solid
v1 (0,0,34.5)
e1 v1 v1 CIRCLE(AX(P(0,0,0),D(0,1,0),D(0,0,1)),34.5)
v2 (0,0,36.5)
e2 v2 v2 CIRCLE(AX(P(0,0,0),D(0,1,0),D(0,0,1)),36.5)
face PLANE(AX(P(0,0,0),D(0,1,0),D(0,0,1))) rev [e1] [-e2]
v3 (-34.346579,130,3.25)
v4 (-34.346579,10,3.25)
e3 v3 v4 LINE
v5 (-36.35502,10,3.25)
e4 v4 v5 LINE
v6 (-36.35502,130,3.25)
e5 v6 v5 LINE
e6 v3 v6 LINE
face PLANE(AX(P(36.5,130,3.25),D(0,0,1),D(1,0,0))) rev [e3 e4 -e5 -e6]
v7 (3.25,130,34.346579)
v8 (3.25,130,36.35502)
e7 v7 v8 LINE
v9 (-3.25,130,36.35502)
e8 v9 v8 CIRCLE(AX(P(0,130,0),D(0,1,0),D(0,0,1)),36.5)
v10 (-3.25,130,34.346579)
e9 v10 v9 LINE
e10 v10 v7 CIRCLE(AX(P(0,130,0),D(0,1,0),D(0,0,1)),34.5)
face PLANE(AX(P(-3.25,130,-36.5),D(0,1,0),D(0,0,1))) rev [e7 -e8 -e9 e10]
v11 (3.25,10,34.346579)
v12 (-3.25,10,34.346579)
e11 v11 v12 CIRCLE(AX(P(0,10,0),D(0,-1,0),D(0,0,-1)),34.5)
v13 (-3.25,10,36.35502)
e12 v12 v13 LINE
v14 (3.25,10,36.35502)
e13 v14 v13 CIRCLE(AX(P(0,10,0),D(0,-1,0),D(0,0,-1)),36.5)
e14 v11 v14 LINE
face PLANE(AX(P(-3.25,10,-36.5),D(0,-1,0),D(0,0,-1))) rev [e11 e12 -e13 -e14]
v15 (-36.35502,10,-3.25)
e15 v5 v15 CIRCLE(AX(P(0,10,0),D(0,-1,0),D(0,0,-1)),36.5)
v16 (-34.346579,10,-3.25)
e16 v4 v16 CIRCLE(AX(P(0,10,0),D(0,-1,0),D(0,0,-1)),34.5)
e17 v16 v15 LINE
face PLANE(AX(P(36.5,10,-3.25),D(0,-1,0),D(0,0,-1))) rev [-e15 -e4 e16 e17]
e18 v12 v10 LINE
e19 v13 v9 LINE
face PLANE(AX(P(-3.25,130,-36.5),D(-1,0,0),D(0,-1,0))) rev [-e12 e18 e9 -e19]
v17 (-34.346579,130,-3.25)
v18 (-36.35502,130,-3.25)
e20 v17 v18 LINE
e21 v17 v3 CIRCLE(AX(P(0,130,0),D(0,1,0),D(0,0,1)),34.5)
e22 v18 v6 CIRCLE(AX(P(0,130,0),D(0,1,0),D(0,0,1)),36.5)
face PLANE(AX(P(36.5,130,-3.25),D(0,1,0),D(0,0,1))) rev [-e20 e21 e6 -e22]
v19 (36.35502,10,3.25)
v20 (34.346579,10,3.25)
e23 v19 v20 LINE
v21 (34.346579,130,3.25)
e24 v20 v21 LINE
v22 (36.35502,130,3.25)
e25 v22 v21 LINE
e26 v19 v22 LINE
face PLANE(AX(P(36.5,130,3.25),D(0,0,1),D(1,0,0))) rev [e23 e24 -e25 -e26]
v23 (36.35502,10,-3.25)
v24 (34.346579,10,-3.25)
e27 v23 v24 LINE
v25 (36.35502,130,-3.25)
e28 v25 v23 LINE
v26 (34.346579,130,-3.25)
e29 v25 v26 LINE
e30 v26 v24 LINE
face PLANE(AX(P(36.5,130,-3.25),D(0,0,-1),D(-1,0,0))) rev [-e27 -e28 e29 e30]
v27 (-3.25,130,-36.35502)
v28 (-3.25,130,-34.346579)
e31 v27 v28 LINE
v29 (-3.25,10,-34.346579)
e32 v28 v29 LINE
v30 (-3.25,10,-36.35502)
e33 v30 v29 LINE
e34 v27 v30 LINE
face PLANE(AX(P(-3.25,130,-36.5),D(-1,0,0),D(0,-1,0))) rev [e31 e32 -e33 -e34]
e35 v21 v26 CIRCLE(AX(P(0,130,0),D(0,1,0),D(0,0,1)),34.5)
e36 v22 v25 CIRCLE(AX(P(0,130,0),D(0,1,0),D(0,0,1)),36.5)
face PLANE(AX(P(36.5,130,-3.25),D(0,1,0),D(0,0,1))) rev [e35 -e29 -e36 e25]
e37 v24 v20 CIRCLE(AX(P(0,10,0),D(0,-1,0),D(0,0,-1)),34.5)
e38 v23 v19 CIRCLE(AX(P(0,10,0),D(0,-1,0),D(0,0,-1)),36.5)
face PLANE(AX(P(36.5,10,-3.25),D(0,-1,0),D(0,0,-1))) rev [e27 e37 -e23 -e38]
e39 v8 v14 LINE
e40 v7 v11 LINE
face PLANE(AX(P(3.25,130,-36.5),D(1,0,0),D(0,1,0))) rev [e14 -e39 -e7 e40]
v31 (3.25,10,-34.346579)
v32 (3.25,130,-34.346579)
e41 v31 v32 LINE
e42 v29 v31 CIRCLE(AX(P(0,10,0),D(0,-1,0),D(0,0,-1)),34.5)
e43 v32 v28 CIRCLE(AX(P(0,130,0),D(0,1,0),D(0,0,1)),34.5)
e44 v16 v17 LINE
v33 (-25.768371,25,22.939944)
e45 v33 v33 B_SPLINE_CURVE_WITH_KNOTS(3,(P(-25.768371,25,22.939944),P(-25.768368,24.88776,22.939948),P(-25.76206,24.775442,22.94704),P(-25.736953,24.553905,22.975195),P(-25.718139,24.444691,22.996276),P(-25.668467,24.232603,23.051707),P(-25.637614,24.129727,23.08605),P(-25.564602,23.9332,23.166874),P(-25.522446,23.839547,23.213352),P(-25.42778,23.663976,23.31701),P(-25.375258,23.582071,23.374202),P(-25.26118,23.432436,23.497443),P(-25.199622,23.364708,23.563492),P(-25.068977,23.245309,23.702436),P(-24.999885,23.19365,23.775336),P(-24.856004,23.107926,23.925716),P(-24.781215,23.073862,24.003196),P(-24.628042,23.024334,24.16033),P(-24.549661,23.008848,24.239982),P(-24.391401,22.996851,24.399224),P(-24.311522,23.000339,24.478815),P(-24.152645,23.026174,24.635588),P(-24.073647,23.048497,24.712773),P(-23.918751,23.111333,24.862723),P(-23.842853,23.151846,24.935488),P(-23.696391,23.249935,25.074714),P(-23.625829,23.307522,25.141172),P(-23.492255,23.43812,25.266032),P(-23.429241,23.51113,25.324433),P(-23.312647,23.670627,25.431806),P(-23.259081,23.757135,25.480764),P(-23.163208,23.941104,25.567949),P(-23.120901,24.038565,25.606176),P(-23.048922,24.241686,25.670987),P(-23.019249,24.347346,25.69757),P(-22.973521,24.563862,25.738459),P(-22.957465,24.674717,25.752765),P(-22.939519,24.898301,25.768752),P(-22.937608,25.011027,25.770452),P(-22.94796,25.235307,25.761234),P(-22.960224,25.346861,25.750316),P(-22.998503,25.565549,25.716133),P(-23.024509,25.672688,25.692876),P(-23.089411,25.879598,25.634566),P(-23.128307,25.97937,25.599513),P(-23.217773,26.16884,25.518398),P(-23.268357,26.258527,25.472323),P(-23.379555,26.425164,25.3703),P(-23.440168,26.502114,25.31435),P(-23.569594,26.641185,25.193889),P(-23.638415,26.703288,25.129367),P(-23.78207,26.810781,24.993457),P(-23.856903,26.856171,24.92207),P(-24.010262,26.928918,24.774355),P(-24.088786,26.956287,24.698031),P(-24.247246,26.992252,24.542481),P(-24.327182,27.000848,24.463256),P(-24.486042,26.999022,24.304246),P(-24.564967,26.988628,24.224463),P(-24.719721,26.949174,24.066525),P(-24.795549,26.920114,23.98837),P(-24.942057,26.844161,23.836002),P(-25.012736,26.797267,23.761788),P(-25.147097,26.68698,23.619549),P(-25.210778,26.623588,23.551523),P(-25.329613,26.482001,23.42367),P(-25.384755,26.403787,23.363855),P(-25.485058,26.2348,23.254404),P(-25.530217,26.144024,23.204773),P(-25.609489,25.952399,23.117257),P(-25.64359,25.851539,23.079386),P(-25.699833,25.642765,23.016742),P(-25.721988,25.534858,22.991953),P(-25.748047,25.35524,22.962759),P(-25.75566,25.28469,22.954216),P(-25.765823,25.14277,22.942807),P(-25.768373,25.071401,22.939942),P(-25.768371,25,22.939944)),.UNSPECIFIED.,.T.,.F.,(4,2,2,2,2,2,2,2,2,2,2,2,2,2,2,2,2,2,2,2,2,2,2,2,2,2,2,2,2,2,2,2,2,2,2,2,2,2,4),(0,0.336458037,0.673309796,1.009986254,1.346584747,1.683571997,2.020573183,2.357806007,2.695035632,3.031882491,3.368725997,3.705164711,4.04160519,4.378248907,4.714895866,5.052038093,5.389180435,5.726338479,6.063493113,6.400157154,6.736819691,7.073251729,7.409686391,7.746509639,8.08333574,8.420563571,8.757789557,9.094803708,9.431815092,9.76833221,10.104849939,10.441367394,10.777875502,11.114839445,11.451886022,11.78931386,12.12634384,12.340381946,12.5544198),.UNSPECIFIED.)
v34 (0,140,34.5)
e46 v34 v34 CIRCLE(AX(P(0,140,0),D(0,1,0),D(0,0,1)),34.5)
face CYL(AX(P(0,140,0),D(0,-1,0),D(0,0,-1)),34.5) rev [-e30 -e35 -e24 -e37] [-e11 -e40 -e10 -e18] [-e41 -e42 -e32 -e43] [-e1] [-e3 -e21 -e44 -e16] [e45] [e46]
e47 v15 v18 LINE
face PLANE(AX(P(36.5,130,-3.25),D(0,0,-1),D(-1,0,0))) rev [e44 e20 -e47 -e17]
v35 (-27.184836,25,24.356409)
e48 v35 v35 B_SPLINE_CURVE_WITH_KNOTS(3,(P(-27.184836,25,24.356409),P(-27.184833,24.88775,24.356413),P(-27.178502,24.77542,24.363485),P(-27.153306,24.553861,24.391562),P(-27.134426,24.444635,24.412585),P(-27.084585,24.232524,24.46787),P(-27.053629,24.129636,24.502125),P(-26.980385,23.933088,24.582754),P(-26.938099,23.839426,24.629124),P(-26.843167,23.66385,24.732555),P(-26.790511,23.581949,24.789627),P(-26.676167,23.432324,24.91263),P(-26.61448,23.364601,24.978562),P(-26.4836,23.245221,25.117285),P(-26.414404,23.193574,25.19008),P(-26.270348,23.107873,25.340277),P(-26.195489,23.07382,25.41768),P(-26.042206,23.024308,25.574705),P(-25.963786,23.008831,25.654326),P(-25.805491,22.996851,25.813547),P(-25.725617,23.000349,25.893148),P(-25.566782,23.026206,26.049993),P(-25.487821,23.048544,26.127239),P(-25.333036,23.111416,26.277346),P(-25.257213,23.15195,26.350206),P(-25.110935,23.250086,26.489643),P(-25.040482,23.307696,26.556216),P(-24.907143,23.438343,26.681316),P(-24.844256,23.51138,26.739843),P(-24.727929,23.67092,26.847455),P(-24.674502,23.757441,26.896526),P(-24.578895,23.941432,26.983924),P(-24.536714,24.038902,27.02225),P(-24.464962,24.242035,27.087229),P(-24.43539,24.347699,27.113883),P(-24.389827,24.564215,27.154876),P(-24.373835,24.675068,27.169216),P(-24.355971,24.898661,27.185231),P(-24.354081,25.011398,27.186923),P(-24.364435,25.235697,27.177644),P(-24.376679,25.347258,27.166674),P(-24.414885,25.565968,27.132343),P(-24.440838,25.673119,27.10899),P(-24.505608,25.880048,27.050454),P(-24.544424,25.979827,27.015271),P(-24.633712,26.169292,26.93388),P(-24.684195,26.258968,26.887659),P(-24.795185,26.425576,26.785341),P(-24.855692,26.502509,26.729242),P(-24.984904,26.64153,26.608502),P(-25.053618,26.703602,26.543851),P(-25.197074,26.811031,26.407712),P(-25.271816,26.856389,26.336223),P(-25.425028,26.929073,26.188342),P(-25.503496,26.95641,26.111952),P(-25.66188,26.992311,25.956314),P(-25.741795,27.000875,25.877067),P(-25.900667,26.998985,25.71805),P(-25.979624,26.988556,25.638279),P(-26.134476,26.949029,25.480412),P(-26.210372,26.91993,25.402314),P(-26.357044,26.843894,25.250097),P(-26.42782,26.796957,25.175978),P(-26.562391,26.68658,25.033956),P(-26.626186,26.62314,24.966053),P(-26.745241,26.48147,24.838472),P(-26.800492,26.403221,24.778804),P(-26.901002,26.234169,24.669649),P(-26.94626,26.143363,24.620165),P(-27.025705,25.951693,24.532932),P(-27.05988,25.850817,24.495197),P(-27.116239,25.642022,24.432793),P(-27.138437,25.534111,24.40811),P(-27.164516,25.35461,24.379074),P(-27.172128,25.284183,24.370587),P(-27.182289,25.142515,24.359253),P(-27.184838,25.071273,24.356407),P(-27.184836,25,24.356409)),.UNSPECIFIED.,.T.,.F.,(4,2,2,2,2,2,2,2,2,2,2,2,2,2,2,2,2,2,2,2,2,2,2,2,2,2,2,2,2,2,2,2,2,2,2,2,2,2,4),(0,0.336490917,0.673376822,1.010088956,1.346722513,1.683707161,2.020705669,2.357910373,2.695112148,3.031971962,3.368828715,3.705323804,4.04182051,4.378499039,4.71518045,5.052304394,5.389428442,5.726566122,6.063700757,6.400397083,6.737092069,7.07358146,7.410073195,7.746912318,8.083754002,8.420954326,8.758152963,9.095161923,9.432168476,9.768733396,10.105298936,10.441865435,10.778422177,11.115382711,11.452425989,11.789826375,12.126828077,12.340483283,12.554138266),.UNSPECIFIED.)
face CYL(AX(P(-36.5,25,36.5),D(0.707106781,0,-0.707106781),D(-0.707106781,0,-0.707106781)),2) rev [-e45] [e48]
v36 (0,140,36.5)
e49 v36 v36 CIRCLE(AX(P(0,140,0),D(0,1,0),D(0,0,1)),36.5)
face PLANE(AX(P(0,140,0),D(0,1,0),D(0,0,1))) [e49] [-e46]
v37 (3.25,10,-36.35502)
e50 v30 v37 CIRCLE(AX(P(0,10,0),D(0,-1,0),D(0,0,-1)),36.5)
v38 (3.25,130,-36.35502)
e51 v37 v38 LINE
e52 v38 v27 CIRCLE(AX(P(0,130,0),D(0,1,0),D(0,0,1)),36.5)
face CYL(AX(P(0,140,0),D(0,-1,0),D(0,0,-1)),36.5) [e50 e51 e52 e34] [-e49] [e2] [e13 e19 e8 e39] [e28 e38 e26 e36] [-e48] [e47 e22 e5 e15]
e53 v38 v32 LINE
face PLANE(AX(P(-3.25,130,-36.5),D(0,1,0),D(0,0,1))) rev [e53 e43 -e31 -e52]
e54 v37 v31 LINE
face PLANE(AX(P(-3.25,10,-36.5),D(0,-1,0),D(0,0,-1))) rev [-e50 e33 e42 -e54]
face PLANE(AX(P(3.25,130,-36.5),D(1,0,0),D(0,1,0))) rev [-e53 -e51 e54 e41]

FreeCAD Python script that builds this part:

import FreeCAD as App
import Part
import Sketcher
Q = App.Units.Quantity

doc = App.newDocument("Part")
body = doc.addObject("PartDesign::Body", "Body")

# Sketch on XZ plane
sketch1 = body.newObject("Sketcher::SketchObject", "Sketch")
sketch1.AttachmentSupport = (doc.getObject("XZ_Plane"), [""])
sketch1.MapMode = "FlatFace"
sketch1.addGeometry([
    Part.Circle(App.Vector(0, 0, 0), App.Vector(0, 0, 1), 36.5),
    Part.Circle(App.Vector(0, 0, 0), App.Vector(0, 0, 1), 34.5),
], False)
sketch1.addConstraint([
    Sketcher.Constraint("Coincident", 0, 3, -1, 1),
    Sketcher.Constraint("Coincident", 1, 3, -1, 1),
    Sketcher.Constraint("Diameter", 0, Q("73 mm")),
    Sketcher.Constraint("Diameter", 1, Q("69 mm")),
])
pad1 = body.newObject("PartDesign::Pad", "Pad")
pad1.Profile = sketch1
pad1.Length = 140
pad1.Reversed = True

# Sketch on XY plane
sketch2 = body.newObject("Sketcher::SketchObject", "Sketch001")
sketch2.AttachmentSupport = (doc.getObject("XY_Plane"), [""])
sketch2.MapMode = "FlatFace"
sketch2.addGeometry([
    Part.LineSegment(App.Vector(-3.25, 130, 0), App.Vector(-3.25, 10, 0)),
    Part.LineSegment(App.Vector(-3.25, 10, 0), App.Vector(3.25, 10, 0)),
    Part.LineSegment(App.Vector(3.25, 10, 0), App.Vector(3.25, 130, 0)),
    Part.LineSegment(App.Vector(3.25, 130, 0), App.Vector(-3.25, 130, 0)),
], False)
sketch2.addConstraint([
    Sketcher.Constraint("Coincident", 0, 2, 1, 1),
    Sketcher.Constraint("Coincident", 1, 2, 2, 1),
    Sketcher.Constraint("Coincident", 2, 2, 3, 1),
    Sketcher.Constraint("Coincident", 3, 2, 0, 1),
    Sketcher.Constraint("Vertical", 0),
    Sketcher.Constraint("Horizontal", 1),
    Sketcher.Constraint("Vertical", 2),
    Sketcher.Constraint("Horizontal", 3),
    Sketcher.Constraint("DistanceY", 0, 2, 0, 1, Q("120 mm")),
    Sketcher.Constraint("DistanceX", 1, 1, 1, 2, Q("6.5 mm")),
    Sketcher.Constraint("DistanceY", -1, 1, 0, 2, Q("10 mm")),
    Sketcher.Constraint("DistanceX", 0, 2, -1, 1, Q("3.25 mm")),
])
pocket1 = body.newObject("PartDesign::Pocket", "Pocket")
pocket1.Profile = sketch2
pocket1.Length = 300.42587
pocket1.Midplane = True
doc.recompute()

polarpattern = body.newObject("PartDesign::PolarPattern", "PolarPattern")
polarpattern.Originals = [pocket1]
polarpattern.Axis = (doc.getObject("Y_Axis"), [""])
polarpattern.Angle = 90
polarpattern.Occurrences = 2
polarpattern.Reversed = True
body.Tip = polarpattern

# Sketch on an angled plane
sketch3 = body.newObject("Sketcher::SketchObject", "Sketch002")
sketch3.Placement = App.Placement(App.Vector(0, 0, 0), App.Rotation(App.Vector(0.707106781, 0, 0.707106781), App.Vector(0, 0.999999999, 0), App.Vector(-0.707106781, 0, 0.707106781), "ZXY"))
sketch3.addGeometry(Part.Circle(App.Vector(0, 25, 0), App.Vector(0, 0, 1), 2), False)
sketch3.addConstraint([
    Sketcher.Constraint("PointOnObject", 0, 3, -2),
    Sketcher.Constraint("Diameter", 0, Q("4 mm")),
    Sketcher.Constraint("DistanceY", -1, 1, 0, 3, Q("25 mm")),
])
pocket2 = body.newObject("PartDesign::Pocket", "Pocket001")
pocket2.Profile = sketch3
pocket2.Type = "ThroughAll"
pocket2.Reversed = True

doc.recompute()
